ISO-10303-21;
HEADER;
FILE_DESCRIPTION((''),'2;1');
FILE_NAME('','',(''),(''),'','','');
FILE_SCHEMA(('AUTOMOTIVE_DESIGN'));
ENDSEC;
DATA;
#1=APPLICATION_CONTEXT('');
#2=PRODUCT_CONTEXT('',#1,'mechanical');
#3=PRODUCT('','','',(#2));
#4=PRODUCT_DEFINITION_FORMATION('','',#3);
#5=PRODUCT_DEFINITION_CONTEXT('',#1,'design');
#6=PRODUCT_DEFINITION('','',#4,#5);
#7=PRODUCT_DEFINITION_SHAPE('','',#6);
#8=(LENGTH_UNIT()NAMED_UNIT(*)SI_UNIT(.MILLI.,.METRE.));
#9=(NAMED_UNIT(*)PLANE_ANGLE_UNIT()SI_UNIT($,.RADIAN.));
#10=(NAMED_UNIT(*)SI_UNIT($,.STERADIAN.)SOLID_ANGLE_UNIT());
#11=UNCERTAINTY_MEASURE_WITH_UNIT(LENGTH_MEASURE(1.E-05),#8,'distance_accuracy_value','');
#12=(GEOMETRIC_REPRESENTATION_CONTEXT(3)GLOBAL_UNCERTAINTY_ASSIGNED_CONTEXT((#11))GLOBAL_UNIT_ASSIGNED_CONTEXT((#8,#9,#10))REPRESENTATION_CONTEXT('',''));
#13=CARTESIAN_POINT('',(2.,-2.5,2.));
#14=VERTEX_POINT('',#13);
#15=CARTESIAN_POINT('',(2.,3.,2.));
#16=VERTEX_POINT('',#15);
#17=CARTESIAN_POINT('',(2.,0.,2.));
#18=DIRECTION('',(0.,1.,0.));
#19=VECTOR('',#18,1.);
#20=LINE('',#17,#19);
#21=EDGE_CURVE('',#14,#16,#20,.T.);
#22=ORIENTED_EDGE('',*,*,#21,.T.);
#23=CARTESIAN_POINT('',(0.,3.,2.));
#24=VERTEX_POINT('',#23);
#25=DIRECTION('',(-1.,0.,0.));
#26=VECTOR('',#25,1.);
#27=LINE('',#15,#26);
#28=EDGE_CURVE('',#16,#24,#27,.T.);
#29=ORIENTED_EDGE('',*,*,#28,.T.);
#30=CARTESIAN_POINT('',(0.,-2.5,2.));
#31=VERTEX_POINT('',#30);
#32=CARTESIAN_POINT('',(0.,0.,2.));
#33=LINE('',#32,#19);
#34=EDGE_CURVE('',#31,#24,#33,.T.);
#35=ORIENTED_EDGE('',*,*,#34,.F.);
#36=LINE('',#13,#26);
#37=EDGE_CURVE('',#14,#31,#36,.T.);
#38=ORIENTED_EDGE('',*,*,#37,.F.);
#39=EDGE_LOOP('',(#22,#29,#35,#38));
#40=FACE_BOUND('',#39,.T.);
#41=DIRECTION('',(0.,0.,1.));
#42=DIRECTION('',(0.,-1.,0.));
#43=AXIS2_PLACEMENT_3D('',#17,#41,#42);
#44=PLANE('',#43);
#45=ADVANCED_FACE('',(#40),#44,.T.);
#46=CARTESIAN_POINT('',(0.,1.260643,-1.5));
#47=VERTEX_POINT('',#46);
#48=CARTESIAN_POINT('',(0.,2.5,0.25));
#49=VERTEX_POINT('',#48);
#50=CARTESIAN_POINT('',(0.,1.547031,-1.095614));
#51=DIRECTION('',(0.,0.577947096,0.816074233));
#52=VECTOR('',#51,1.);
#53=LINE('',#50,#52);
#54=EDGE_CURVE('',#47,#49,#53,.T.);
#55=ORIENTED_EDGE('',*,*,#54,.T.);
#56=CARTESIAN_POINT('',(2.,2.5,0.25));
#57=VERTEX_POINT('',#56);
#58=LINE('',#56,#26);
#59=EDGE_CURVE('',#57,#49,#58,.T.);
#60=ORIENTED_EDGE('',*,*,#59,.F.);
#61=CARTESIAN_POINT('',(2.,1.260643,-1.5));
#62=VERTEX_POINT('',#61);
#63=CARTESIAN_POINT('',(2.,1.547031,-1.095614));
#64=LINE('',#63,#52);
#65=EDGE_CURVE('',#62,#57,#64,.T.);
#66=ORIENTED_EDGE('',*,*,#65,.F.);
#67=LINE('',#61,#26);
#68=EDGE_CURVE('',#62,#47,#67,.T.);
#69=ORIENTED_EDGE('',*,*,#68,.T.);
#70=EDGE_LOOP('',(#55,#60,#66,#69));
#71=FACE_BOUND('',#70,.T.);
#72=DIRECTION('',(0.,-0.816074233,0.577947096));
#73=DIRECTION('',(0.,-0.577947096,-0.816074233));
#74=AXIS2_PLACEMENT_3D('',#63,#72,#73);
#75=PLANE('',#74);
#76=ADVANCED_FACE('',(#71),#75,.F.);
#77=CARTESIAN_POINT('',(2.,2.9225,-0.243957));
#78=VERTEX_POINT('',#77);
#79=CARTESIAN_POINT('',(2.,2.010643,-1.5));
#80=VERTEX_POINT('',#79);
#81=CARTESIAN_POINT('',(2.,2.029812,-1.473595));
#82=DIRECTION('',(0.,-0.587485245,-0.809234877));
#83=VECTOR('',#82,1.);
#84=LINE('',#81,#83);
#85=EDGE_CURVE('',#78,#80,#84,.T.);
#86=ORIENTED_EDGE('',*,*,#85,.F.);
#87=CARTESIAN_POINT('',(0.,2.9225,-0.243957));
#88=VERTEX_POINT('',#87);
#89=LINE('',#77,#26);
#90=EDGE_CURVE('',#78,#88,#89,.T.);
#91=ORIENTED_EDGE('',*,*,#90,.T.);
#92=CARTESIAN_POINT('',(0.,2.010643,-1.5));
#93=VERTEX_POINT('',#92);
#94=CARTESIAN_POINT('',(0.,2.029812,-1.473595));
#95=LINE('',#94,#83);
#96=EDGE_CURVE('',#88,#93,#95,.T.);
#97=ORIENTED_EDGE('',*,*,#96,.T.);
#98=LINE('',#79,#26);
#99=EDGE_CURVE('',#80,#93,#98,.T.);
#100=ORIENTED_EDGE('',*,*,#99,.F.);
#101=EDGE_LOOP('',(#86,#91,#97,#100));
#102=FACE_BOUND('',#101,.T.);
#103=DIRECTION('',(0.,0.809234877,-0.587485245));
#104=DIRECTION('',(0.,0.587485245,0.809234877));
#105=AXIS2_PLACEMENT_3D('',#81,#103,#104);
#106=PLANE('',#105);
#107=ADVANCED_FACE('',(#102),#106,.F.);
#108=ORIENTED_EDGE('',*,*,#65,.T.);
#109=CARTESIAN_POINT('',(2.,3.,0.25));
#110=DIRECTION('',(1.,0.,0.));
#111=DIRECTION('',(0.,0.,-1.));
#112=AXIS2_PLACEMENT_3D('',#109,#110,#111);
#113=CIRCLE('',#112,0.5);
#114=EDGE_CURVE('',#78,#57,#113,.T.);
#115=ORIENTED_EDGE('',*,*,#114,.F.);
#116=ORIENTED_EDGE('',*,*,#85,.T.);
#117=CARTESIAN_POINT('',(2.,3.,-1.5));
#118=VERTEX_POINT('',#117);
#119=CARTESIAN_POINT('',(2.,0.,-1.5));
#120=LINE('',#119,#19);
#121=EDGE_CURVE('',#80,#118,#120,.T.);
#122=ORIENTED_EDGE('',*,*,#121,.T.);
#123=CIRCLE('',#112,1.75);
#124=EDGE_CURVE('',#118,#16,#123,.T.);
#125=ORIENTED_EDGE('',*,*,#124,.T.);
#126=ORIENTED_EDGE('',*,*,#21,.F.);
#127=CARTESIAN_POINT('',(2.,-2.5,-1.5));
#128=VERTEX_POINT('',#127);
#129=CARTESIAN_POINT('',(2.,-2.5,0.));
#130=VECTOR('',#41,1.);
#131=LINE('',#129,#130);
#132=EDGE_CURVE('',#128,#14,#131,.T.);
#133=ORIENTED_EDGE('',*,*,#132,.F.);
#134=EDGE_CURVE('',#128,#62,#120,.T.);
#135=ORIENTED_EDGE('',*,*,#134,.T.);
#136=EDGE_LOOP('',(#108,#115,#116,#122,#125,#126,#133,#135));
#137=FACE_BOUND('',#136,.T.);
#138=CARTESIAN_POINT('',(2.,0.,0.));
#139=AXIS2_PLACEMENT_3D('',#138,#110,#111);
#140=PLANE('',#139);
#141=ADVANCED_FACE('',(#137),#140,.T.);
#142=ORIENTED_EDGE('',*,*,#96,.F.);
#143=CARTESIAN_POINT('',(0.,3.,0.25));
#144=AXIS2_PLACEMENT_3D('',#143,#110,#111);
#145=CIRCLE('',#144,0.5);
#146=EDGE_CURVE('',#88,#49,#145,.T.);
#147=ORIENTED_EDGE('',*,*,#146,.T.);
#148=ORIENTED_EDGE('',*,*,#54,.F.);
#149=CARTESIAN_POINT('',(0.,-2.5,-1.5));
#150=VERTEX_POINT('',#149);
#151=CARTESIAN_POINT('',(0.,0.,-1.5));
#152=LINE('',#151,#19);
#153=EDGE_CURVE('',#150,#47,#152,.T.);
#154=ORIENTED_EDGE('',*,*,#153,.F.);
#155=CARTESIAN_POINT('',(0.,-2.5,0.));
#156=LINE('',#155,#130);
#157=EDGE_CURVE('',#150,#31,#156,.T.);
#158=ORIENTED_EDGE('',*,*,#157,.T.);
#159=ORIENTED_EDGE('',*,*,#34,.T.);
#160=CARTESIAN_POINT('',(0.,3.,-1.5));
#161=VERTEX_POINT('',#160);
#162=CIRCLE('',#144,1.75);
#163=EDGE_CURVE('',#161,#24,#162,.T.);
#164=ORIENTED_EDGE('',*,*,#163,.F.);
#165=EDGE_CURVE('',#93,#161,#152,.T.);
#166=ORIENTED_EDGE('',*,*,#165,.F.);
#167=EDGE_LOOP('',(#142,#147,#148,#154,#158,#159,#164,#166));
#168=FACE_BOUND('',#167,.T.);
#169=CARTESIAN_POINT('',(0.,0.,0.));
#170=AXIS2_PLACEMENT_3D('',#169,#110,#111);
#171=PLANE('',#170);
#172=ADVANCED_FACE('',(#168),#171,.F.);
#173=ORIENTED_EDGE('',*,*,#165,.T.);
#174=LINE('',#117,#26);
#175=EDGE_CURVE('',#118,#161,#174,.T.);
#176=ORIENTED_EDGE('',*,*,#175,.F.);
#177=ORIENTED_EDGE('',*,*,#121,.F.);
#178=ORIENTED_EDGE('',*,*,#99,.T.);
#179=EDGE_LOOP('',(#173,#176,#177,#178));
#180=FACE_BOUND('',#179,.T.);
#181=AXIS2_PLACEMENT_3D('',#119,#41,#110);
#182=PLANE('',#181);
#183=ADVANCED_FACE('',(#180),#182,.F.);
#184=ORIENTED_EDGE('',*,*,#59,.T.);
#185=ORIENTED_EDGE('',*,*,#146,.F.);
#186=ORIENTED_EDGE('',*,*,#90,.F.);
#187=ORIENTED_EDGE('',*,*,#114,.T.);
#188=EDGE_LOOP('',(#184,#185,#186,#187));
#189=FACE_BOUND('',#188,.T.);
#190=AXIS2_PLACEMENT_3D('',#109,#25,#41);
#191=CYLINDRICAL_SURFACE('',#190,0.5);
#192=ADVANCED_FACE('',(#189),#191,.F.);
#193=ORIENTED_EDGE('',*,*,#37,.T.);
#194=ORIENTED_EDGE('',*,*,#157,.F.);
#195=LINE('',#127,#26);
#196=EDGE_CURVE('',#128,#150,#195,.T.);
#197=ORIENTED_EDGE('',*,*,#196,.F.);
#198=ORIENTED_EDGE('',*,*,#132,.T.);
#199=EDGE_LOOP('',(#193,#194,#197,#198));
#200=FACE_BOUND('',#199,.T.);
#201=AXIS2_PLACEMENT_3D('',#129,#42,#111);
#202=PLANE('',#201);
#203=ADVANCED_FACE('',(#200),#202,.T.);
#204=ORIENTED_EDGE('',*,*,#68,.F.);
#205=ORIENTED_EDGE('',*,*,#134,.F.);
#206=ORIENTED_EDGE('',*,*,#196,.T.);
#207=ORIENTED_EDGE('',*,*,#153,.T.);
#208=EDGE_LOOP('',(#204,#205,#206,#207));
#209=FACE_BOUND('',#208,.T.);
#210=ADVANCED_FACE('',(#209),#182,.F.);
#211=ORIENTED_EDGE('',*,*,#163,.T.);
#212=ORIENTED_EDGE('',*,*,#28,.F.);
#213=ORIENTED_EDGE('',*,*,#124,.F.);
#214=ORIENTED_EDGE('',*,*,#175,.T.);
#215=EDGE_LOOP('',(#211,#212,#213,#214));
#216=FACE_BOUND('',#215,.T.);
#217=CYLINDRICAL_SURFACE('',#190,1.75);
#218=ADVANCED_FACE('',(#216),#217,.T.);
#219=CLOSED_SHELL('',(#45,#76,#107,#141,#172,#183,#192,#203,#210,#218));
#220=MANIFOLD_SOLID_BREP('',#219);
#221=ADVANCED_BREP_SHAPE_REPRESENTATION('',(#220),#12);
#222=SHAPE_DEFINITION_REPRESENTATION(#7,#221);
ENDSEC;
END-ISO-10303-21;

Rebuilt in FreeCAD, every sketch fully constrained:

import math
import FreeCAD as App
import Part
import Sketcher
Q = App.Units.Quantity

doc = App.newDocument("Part")
body = doc.addObject("PartDesign::Body", "Body")

sketch1 = doc.addObject("Sketcher::SketchObject", "Sketch")
body.addObject(sketch1)
sketch1.AttachmentSupport = (doc.YZ_Plane, [""])
sketch1.MapMode = "FlatFace"
sketch1.addGeometry(Part.LineSegment(App.Vector(-2.5, 2, 0), App.Vector(-2.5, -1.5, 0)), False)
sketch1.addGeometry(Part.LineSegment(App.Vector(-2.5, -1.5, 0), App.Vector(1.3, -1.5, 0)), False)
sketch1.addGeometry(Part.LineSegment(App.Vector(1.3, -1.5, 0), App.Vector(2.5, 0.2, 0)), False)
sketch1.addGeometry(Part.ArcOfCircle(Part.Circle(App.Vector(3, 0.2, 0), App.Vector(0, 0, 1), 0.5), math.radians(-99), math.radians(180)), False)
sketch1.addGeometry(Part.LineSegment(App.Vector(2.9, -0.2, 0), App.Vector(2, -1.5, 0)), False)
sketch1.addGeometry(Part.LineSegment(App.Vector(2, -1.5, 0), App.Vector(3, -1.5, 0)), False)
sketch1.addGeometry(Part.ArcOfCircle(Part.Circle(App.Vector(3, 0.2, 0), App.Vector(0, 0, 1), 1.8), math.radians(-90), math.radians(90)), False)
sketch1.addGeometry(Part.LineSegment(App.Vector(3, 2, 0), App.Vector(-2.5, 2, 0)), False)
sketch1.addConstraint(Sketcher.Constraint("Coincident", 0, 2, 1, 1))
sketch1.addConstraint(Sketcher.Constraint("Coincident", 1, 2, 2, 1))
sketch1.addConstraint(Sketcher.Constraint("Coincident", 2, 2, 3, 2))
sketch1.addConstraint(Sketcher.Constraint("Coincident", 3, 1, 4, 1))
sketch1.addConstraint(Sketcher.Constraint("Coincident", 4, 2, 5, 1))
sketch1.addConstraint(Sketcher.Constraint("Tangent", 5, 2, 6, 1))
sketch1.addConstraint(Sketcher.Constraint("Tangent", 6, 2, 7, 1))
sketch1.addConstraint(Sketcher.Constraint("Coincident", 7, 2, 0, 1))
sketch1.addConstraint(Sketcher.Constraint("Vertical", 0))
sketch1.addConstraint(Sketcher.Constraint("Horizontal", 1))
sketch1.addConstraint(Sketcher.Constraint("Horizontal", 5))
sketch1.addConstraint(Sketcher.Constraint("Horizontal", 7))
sketch1.addConstraint(Sketcher.Constraint("Coincident", 6, 3, 3, 3))
sketch1.addConstraint(Sketcher.Constraint("Horizontal", 6, 3, 2, 2))
sketch1.addConstraint(Sketcher.Constraint("Horizontal", 1, 2, 4, 2))
sketch1.addConstraint(Sketcher.Constraint("Radius", 3, Q("0.5 mm")))
sketch1.addConstraint(Sketcher.Constraint("Radius", 6, Q("1.75 mm")))
sketch1.addConstraint(Sketcher.Constraint("DistanceX", 7, 2, 7, 1, Q("5.5 mm")))
sketch1.addConstraint(Sketcher.Constraint("DistanceX", -1, 1, 3, 3, Q("3 mm")))
sketch1.addConstraint(Sketcher.Constraint("DistanceY", -1, 1, 6, 2, Q("2 mm")))
sketch1.addConstraint(Sketcher.Constraint("DistanceX", 1, 2, 4, 2, Q("0.75 mm")))
sketch1.addConstraint(Sketcher.Constraint("DistanceX", -1, 1, 3, 1, Q("2.9225 mm")))
sketch1.addConstraint(Sketcher.Constraint("DistanceX", 1, 1, 1, 2, Q("3.760643 mm")))
pad1 = doc.addObject("PartDesign::Pad", "Pad")
body.addObject(pad1)
pad1.Profile = sketch1
pad1.Length = 2

doc.recompute()
